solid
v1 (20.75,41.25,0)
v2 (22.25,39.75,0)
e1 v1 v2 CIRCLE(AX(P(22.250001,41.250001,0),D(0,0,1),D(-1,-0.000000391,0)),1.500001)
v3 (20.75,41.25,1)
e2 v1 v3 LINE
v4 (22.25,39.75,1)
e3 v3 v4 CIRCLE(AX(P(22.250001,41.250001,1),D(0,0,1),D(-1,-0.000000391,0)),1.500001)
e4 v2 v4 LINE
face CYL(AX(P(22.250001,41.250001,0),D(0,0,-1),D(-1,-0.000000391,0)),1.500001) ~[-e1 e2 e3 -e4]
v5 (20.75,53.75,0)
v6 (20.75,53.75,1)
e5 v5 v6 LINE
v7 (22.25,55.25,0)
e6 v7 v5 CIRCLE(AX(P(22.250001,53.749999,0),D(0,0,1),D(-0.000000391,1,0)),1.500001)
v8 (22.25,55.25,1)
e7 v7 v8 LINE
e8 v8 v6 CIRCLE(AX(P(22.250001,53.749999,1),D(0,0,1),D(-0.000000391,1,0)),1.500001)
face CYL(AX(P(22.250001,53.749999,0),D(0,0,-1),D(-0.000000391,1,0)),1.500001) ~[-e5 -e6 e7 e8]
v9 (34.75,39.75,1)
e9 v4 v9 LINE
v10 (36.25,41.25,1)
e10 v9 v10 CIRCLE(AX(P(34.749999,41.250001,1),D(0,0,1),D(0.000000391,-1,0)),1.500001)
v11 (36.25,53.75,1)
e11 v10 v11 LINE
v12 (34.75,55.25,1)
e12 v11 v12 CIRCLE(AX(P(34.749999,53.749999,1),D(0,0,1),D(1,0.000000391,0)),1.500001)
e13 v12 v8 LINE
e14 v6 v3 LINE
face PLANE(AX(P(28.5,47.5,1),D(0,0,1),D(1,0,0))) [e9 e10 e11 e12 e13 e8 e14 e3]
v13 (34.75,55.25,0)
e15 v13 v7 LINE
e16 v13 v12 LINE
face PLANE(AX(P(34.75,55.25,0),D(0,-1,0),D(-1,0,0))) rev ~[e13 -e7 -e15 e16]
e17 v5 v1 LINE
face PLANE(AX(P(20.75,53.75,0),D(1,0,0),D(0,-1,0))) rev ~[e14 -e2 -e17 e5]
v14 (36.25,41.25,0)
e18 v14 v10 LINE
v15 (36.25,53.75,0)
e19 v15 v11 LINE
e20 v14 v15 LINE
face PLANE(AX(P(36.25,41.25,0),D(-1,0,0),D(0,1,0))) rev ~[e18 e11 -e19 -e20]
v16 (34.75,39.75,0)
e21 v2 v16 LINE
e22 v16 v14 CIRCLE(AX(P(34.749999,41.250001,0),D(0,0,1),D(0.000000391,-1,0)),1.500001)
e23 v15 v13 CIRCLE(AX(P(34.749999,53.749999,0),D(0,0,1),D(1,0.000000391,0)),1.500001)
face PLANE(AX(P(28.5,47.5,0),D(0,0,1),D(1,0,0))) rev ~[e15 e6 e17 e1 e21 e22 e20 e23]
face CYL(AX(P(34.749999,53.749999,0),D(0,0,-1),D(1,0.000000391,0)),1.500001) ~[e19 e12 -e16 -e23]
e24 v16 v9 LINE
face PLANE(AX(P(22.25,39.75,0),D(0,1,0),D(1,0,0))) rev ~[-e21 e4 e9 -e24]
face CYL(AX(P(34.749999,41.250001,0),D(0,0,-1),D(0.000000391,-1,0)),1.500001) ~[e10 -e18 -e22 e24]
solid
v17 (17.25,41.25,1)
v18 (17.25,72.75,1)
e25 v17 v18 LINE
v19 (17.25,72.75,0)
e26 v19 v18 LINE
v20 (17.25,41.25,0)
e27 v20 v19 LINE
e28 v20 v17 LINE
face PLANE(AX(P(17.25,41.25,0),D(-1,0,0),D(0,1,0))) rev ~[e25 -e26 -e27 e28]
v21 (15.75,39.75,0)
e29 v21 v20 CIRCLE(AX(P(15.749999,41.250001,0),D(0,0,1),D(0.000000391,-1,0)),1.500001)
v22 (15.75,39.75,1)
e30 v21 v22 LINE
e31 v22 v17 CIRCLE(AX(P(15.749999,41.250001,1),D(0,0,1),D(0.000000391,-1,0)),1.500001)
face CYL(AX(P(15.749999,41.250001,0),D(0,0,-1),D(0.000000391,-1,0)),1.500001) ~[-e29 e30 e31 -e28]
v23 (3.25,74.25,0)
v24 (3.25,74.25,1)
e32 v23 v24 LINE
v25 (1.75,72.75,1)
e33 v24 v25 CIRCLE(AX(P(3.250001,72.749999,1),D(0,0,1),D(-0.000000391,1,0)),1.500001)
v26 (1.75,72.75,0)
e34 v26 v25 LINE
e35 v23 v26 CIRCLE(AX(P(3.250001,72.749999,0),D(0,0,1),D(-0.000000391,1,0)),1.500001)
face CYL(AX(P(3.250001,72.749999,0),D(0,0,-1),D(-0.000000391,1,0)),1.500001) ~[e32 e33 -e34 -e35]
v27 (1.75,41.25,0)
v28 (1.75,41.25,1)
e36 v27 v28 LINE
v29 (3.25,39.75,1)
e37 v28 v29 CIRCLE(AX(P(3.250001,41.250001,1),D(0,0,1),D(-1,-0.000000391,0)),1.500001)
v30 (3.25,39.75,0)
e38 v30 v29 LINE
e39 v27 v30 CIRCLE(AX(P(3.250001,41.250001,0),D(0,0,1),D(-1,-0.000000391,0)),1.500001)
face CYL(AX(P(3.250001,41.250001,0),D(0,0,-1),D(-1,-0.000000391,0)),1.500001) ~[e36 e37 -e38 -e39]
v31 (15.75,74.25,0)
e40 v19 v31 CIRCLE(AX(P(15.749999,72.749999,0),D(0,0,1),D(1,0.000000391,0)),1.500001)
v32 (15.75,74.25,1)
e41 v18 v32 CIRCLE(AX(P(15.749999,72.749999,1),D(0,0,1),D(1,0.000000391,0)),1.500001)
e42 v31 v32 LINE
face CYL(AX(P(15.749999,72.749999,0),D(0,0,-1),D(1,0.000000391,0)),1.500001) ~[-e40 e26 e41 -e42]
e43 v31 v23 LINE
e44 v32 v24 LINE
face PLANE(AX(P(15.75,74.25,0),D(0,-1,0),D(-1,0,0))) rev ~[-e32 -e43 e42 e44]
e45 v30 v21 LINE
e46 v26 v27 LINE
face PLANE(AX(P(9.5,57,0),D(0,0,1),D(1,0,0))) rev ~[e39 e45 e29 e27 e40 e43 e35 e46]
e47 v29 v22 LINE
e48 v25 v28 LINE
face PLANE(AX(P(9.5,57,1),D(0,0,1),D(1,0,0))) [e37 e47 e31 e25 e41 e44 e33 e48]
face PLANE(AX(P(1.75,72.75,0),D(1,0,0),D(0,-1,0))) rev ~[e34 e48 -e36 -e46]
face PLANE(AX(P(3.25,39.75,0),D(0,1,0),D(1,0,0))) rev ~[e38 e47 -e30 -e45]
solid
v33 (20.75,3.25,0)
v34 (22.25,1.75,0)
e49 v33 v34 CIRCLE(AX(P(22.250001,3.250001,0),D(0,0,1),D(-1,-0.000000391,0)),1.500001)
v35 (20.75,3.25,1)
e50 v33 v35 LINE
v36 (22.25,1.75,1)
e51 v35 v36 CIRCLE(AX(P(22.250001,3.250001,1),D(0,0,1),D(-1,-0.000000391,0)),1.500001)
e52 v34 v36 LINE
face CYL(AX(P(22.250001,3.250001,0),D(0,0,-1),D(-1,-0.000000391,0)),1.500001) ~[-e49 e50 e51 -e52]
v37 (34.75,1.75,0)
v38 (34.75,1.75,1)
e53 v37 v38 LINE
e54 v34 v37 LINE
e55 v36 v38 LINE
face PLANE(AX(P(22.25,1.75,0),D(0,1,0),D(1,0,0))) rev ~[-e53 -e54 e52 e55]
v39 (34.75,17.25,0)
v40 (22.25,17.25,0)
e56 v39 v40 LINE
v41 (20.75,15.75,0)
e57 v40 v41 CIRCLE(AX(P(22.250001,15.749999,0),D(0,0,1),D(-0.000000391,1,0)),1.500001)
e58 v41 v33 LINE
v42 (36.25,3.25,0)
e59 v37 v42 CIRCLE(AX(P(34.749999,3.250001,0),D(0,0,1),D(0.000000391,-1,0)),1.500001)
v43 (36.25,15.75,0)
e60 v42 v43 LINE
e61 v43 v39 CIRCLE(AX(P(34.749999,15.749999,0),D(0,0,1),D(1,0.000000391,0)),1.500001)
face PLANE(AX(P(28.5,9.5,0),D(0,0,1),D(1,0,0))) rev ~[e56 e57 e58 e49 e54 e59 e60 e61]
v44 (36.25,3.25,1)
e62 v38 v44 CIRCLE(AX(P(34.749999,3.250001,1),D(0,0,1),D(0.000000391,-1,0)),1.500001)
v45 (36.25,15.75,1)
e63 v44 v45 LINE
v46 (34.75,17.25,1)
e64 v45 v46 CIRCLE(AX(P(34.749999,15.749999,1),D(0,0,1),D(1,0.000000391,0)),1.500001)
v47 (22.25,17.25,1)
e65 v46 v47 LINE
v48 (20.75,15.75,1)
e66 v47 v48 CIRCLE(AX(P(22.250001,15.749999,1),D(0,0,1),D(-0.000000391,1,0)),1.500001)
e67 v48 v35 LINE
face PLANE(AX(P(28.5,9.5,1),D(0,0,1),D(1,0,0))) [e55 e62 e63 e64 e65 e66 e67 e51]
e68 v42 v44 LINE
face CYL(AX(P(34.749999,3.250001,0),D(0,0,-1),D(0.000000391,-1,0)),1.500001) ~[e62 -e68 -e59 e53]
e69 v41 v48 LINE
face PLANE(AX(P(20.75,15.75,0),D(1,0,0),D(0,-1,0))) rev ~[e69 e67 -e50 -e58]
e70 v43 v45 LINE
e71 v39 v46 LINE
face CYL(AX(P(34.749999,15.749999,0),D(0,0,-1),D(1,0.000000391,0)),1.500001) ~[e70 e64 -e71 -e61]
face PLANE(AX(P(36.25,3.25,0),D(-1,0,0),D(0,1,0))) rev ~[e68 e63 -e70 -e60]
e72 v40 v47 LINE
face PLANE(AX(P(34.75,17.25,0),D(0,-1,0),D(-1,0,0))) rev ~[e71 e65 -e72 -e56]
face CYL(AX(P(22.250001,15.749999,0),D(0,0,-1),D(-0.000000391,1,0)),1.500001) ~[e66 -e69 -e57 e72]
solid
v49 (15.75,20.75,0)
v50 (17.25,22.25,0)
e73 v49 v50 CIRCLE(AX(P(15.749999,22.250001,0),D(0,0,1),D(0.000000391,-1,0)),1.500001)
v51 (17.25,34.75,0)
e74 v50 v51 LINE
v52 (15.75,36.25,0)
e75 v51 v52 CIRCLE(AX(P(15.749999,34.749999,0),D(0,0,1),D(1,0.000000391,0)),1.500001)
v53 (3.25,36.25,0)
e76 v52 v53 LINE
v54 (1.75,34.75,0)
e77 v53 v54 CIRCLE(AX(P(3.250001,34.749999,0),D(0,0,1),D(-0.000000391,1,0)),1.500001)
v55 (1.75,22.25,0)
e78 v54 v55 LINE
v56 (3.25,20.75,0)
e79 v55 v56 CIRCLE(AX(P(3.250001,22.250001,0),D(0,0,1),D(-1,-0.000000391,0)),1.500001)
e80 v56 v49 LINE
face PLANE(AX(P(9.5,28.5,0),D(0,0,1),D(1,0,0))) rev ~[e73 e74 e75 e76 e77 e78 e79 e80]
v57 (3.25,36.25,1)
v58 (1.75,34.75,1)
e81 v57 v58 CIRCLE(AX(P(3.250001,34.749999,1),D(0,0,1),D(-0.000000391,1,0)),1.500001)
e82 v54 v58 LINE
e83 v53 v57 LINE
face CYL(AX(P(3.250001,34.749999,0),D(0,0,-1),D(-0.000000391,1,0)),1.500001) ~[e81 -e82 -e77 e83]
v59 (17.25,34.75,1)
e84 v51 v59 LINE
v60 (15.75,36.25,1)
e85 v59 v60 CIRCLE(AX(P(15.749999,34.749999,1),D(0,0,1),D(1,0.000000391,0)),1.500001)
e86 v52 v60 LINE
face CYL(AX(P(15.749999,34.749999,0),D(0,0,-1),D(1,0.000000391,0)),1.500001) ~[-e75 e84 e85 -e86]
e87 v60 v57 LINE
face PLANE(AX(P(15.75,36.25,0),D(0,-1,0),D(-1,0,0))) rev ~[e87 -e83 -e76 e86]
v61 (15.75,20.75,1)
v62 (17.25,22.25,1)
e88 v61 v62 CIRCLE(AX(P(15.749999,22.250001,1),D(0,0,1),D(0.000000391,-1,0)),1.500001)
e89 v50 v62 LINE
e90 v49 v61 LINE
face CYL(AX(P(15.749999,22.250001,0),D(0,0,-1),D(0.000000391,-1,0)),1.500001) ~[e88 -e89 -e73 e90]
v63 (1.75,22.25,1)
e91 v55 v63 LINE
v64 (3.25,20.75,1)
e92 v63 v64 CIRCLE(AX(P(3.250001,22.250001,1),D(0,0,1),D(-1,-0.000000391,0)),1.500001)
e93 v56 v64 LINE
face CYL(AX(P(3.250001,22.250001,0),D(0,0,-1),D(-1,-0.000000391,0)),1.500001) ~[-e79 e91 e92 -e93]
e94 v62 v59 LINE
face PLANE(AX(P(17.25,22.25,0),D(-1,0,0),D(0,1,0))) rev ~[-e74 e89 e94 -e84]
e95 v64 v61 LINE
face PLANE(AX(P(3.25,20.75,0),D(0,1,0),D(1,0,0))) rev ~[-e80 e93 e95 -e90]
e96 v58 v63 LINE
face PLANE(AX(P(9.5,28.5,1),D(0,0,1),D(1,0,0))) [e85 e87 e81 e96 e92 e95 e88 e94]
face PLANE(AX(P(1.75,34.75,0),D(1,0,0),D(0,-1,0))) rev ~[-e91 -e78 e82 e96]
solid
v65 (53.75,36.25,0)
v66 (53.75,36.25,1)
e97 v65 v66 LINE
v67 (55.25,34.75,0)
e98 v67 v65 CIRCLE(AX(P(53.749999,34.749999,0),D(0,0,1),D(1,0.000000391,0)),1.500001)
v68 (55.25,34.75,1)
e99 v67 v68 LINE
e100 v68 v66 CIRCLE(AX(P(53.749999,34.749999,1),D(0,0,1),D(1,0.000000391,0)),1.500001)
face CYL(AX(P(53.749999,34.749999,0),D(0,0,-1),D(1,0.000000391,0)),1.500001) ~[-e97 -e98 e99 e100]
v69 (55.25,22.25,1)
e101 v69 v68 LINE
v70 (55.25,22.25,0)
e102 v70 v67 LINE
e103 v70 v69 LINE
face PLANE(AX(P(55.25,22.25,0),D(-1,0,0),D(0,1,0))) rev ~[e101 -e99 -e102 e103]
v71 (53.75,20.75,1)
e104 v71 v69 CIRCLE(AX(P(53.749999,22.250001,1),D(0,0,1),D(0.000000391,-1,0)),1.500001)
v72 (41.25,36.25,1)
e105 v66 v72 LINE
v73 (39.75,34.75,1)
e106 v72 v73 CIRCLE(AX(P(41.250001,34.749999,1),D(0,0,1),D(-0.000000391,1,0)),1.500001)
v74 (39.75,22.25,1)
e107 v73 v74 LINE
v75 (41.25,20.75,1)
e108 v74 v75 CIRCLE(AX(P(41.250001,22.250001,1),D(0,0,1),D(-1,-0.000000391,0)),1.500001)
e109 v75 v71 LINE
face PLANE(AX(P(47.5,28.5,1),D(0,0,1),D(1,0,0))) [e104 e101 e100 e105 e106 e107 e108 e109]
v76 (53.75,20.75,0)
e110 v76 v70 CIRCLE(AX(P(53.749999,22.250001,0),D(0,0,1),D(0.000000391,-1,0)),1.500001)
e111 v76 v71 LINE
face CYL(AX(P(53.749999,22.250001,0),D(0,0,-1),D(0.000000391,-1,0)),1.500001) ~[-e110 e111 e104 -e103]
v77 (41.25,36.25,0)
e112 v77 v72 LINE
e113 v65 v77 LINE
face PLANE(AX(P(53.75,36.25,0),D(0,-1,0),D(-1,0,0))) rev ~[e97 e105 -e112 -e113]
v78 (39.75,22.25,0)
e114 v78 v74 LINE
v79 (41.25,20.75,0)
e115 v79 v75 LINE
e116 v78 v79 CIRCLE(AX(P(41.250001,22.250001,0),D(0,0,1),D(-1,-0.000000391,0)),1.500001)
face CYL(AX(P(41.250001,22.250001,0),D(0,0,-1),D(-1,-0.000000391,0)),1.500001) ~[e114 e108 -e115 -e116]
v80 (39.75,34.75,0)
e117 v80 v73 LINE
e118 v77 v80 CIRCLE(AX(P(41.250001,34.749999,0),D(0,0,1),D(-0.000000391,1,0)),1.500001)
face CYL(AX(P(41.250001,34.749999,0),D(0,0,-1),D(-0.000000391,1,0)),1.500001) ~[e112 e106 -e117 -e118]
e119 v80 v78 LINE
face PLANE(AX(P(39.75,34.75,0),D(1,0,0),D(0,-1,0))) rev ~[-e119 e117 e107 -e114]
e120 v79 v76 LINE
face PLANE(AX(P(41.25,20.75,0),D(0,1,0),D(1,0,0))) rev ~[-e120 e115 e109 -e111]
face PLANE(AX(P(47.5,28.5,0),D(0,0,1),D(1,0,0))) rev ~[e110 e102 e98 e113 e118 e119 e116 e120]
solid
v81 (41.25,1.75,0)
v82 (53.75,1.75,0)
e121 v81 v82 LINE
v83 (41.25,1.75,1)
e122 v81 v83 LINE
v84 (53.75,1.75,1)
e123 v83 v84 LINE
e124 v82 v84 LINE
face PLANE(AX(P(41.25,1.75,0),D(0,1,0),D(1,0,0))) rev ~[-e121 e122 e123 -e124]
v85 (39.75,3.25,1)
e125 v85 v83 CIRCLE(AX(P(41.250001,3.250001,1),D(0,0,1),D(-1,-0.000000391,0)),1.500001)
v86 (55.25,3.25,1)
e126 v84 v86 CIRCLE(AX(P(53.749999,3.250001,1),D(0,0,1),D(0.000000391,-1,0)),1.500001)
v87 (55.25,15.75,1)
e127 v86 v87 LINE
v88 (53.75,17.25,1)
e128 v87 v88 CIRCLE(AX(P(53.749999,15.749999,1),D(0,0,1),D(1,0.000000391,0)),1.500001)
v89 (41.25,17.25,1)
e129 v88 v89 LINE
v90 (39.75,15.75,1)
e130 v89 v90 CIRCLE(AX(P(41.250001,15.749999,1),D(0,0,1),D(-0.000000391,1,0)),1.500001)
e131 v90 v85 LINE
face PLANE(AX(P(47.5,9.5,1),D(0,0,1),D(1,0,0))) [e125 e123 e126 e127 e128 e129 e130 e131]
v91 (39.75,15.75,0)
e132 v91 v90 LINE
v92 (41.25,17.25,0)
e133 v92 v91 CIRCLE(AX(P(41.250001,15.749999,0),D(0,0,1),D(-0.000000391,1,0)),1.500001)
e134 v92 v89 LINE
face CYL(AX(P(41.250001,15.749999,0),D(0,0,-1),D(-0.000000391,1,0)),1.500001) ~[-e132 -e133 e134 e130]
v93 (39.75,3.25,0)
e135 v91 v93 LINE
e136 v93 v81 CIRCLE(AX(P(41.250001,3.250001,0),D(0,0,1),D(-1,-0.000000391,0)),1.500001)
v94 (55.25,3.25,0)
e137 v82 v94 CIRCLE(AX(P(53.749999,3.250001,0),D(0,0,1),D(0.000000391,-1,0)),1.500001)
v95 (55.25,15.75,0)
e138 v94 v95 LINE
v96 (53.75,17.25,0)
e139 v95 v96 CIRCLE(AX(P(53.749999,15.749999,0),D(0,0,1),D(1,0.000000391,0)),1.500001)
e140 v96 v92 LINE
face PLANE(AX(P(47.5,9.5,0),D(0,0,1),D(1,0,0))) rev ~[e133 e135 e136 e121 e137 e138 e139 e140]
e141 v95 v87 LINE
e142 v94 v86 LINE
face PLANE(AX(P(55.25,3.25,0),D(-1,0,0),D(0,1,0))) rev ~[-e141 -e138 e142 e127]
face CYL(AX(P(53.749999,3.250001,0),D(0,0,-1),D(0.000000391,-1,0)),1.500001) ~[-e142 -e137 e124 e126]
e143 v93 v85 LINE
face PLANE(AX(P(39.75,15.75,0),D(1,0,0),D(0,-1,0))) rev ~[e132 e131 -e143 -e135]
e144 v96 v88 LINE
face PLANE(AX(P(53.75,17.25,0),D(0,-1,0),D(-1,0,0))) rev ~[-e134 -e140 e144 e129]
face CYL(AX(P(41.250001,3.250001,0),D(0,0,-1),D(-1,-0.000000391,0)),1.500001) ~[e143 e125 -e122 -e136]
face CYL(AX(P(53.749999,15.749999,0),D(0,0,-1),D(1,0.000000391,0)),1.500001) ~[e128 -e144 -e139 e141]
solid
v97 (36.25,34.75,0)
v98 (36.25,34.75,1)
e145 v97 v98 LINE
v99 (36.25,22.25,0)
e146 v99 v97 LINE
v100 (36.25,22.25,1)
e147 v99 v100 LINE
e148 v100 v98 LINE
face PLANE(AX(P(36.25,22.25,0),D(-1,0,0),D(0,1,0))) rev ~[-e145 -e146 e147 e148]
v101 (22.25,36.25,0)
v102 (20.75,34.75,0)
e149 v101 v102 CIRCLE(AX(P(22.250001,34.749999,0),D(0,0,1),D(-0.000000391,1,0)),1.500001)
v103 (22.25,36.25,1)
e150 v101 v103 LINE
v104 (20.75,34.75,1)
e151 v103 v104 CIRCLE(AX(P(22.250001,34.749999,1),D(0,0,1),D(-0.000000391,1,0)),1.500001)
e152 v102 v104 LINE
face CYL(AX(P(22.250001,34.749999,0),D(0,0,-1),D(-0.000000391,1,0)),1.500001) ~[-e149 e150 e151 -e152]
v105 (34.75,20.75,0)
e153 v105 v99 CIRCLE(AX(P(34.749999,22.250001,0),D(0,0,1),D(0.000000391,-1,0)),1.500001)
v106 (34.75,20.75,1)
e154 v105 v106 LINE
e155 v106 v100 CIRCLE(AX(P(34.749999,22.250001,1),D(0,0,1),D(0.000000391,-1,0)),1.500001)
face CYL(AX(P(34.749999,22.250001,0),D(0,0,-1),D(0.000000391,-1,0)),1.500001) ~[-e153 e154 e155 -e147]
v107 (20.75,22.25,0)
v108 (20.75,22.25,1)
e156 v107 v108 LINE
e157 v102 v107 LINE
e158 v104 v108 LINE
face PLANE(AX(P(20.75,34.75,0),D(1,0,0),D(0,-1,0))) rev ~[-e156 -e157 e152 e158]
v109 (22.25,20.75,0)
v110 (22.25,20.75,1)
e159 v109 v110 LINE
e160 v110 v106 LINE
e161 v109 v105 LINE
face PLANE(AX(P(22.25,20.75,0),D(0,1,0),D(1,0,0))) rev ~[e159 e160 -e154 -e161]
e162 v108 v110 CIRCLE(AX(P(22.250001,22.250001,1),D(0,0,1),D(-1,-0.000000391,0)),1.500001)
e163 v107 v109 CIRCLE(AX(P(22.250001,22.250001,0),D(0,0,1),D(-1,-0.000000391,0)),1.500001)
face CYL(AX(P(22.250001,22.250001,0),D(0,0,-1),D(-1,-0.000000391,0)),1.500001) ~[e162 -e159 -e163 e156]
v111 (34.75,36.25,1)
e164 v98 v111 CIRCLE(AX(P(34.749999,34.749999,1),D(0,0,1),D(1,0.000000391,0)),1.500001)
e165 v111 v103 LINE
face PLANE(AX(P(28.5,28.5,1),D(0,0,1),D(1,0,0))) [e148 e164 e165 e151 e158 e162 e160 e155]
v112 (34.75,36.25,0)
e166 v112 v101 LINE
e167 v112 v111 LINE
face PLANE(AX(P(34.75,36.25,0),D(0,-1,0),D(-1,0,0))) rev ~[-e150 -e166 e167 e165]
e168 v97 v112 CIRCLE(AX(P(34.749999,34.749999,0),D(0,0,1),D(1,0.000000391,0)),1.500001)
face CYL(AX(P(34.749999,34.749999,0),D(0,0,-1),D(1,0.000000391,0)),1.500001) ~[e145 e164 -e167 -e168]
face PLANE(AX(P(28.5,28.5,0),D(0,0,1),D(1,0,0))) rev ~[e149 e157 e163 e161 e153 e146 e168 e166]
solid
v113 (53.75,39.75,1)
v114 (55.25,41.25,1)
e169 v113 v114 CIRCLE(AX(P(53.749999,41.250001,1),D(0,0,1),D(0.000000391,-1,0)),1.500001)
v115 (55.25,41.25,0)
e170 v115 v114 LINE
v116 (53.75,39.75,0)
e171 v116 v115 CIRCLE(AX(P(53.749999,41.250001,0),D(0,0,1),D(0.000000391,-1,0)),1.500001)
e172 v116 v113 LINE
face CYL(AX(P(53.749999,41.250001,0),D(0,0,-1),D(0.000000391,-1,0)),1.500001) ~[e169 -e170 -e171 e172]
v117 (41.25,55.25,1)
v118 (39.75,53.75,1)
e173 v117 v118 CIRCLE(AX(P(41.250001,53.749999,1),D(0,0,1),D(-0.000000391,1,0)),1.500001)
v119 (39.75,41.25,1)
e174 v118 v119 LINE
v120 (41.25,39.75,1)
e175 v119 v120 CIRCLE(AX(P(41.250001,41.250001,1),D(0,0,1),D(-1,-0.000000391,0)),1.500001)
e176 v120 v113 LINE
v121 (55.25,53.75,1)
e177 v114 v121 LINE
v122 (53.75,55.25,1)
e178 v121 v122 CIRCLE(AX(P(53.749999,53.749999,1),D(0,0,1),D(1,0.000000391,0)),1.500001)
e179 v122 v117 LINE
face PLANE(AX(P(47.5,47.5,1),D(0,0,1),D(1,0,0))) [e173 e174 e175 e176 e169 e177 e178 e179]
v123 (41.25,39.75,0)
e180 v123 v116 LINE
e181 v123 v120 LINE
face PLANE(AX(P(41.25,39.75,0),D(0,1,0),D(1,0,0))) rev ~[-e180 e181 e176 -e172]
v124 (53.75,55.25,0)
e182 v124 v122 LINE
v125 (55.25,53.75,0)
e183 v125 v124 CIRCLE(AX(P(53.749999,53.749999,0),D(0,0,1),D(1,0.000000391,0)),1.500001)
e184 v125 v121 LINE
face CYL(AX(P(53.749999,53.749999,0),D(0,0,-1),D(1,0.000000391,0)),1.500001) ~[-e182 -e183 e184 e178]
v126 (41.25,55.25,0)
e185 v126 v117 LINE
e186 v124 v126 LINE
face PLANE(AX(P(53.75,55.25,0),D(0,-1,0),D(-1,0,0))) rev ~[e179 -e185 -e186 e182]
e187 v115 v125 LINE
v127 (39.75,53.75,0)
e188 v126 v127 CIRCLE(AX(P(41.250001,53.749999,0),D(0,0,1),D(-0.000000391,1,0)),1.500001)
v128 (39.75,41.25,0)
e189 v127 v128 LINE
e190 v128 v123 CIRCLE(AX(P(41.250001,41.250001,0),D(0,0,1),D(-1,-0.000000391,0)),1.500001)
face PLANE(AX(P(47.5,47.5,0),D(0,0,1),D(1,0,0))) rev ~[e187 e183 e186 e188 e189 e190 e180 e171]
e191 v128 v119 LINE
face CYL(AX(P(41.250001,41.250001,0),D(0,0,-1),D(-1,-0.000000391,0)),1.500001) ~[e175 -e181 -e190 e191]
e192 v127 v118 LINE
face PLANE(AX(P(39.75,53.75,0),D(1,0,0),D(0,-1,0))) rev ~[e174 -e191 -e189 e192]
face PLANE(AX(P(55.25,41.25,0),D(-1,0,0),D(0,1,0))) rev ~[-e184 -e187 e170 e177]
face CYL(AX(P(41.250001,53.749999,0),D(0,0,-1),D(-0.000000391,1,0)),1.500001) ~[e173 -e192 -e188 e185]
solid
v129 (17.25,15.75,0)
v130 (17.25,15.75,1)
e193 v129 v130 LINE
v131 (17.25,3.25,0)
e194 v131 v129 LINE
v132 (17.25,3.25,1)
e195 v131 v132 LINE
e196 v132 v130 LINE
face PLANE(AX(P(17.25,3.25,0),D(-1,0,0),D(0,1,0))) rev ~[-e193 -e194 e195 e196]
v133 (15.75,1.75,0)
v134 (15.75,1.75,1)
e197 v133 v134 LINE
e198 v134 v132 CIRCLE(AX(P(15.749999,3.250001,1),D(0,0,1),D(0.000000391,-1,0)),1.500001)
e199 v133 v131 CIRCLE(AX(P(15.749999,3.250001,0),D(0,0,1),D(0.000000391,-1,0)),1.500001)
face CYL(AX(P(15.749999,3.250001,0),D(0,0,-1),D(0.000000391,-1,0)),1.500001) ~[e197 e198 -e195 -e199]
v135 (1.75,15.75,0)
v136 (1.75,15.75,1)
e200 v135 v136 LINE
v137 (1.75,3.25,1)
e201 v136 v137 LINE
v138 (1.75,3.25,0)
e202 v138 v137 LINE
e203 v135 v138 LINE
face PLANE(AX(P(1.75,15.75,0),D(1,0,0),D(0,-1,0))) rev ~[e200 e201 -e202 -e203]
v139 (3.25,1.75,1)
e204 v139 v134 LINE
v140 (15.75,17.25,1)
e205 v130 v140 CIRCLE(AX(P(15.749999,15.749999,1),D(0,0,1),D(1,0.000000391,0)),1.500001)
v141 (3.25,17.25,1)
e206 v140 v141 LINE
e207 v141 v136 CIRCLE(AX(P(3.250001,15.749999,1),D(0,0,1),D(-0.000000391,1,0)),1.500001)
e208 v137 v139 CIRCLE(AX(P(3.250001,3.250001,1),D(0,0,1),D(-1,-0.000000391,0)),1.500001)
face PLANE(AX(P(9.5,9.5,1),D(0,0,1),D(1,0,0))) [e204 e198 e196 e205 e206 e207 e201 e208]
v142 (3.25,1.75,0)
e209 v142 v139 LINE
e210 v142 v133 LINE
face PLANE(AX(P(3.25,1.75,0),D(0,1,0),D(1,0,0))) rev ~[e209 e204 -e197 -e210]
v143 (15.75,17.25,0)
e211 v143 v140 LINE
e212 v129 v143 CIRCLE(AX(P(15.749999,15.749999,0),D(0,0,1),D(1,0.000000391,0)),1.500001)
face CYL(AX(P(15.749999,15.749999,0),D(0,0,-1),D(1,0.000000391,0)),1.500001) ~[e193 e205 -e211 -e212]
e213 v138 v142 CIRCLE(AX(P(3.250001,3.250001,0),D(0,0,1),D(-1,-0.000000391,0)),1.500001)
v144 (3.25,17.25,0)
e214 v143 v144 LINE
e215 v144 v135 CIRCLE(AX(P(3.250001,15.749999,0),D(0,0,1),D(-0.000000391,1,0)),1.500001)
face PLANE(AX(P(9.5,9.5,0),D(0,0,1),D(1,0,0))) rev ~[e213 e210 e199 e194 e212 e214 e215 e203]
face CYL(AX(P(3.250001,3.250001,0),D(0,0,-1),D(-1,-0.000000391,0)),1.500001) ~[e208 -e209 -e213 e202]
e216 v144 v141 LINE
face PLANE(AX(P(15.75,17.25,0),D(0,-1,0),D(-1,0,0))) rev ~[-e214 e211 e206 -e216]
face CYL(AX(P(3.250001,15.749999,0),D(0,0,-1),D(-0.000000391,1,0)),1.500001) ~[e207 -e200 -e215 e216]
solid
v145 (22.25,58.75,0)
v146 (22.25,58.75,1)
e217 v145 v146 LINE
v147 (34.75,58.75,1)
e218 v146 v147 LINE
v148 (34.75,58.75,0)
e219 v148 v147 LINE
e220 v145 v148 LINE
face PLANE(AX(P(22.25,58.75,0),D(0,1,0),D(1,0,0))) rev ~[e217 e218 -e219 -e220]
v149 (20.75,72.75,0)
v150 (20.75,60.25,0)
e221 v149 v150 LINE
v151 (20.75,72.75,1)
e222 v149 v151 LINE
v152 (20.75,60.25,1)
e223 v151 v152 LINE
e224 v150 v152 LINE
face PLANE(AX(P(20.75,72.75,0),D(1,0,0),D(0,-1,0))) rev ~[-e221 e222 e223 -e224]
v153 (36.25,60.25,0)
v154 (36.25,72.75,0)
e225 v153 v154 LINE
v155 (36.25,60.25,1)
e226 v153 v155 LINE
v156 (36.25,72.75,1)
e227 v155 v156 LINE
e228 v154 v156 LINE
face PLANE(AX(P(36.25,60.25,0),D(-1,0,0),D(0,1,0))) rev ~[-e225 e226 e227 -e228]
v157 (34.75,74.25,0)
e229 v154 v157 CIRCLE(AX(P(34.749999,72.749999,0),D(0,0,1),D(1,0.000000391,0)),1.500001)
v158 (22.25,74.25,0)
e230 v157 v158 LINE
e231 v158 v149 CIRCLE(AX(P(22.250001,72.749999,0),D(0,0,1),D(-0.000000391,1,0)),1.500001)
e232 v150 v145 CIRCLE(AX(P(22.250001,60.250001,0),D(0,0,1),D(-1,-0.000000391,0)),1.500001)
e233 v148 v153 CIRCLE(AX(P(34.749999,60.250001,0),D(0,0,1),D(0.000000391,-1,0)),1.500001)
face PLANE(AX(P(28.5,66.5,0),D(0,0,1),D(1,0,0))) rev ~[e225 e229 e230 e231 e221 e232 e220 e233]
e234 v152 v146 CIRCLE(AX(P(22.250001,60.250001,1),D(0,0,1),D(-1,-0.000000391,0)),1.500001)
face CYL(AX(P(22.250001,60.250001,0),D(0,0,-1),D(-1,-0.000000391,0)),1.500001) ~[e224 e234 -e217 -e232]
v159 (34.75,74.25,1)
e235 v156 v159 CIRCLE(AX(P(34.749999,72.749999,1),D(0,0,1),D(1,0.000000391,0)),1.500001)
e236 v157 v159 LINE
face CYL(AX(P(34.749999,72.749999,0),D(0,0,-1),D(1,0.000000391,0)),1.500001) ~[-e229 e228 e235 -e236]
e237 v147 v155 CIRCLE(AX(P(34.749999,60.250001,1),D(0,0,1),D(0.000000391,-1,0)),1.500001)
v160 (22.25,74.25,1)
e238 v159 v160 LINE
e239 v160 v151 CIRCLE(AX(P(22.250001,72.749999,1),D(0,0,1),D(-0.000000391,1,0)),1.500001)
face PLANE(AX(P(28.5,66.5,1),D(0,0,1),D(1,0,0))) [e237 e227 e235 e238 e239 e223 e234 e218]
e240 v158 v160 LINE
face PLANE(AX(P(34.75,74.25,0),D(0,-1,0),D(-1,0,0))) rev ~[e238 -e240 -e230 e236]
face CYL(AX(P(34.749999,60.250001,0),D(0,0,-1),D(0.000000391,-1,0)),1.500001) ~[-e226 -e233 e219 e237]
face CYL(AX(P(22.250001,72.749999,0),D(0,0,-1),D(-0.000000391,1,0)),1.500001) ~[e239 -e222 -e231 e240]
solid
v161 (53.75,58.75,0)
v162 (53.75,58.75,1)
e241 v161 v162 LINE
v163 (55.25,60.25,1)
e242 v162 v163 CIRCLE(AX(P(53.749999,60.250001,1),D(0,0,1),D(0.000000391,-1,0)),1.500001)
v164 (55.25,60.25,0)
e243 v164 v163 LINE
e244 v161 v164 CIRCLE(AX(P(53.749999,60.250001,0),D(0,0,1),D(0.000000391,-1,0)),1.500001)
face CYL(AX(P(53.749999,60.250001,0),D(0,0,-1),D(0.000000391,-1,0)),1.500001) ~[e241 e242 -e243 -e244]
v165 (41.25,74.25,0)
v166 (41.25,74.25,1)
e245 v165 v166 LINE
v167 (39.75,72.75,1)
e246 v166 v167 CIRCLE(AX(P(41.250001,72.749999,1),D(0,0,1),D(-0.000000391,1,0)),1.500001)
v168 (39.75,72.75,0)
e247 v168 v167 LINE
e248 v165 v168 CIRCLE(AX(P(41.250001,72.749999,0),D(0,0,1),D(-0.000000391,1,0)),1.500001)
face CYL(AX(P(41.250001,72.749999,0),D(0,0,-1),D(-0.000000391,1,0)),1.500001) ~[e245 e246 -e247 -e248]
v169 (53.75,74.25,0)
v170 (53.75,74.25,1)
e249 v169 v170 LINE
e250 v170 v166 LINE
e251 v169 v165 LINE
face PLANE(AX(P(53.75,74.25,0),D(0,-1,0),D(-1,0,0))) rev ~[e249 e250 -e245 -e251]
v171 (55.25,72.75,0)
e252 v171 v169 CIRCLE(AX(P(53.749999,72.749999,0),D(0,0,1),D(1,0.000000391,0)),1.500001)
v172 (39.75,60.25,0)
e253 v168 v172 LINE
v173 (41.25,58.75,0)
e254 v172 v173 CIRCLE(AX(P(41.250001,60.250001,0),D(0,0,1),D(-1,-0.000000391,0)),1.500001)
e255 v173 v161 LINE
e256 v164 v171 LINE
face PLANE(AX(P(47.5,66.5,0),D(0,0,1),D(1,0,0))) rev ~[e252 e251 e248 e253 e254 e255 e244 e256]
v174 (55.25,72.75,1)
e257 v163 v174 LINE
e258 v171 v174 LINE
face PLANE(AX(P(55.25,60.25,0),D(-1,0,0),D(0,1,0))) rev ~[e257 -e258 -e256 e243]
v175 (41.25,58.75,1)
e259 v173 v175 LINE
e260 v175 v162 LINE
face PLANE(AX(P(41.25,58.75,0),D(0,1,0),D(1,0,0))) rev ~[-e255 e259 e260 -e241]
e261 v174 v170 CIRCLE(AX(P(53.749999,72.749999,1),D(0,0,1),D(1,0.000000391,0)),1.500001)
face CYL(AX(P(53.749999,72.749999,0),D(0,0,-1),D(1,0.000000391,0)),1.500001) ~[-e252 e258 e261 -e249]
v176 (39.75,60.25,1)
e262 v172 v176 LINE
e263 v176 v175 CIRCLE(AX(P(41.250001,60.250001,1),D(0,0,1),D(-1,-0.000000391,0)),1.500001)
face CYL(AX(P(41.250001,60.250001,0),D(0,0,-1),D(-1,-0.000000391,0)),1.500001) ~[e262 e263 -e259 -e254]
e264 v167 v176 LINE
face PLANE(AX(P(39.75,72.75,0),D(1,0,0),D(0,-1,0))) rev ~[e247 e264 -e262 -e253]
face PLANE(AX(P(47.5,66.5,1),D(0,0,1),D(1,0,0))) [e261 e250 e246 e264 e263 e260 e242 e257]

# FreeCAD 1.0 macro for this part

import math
import FreeCAD as App
import Part
import Sketcher

V = App.Vector
Q = App.Units.Quantity

doc = App.newDocument("Part")
body = doc.addObject("PartDesign::Body", "Body")
body.AllowCompound = True

# Sketch on XY plane
sketch1 = body.newObject("Sketcher::SketchObject", "Sketch")
sketch1.AttachmentSupport = (doc.getObject("XY_Plane"), [""])
sketch1.MapMode = "FlatFace"
sketch1.addGeometry(Part.LineSegment(V(15.75, 17.25, 0), V(3.25, 17.25, 0)), False)
sketch1.addGeometry(Part.ArcOfCircle(Part.Circle(V(3.250001, 15.749999, 0), V(0, 0, 1), 1.500001), math.radians(90.000022), math.radians(179.999978)), False)
sketch1.addGeometry(Part.LineSegment(V(1.75, 15.75, 0), V(1.75, 3.25, 0)), False)
sketch1.addGeometry(Part.ArcOfCircle(Part.Circle(V(3.250001, 3.250001, 0), V(0, 0, 1), 1.500001), math.radians(-179.999978), math.radians(-90.000022)), False)
sketch1.addGeometry(Part.LineSegment(V(3.25, 1.75, 0), V(15.75, 1.75, 0)), False)
sketch1.addGeometry(Part.ArcOfCircle(Part.Circle(V(15.749999, 3.250001, 0), V(0, 0, 1), 1.500001), math.radians(-89.999978), math.radians(-0.000022)), False)
sketch1.addGeometry(Part.LineSegment(V(17.25, 3.25, 0), V(17.25, 15.75, 0)), False)
sketch1.addGeometry(Part.ArcOfCircle(Part.Circle(V(15.749999, 15.749999, 0), V(0, 0, 1), 1.500001), math.radians(0.000022), math.radians(89.999978)), False)
sketch1.addGeometry(Part.LineSegment(V(17.25, 22.25, 0), V(17.25, 34.75, 0)), False)
sketch1.addGeometry(Part.ArcOfCircle(Part.Circle(V(15.749999, 34.749999, 0), V(0, 0, 1), 1.500001), math.radians(0.000022), math.radians(89.999978)), False)
sketch1.addGeometry(Part.LineSegment(V(15.75, 36.25, 0), V(3.25, 36.25, 0)), False)
sketch1.addGeometry(Part.ArcOfCircle(Part.Circle(V(3.250001, 34.749999, 0), V(0, 0, 1), 1.500001), math.radians(90.000022), math.radians(179.999978)), False)
sketch1.addGeometry(Part.LineSegment(V(1.75, 34.75, 0), V(1.75, 22.25, 0)), False)
sketch1.addGeometry(Part.ArcOfCircle(Part.Circle(V(3.250001, 22.250001, 0), V(0, 0, 1), 1.500001), math.radians(-179.999978), math.radians(-90.000022)), False)
sketch1.addGeometry(Part.LineSegment(V(3.25, 20.75, 0), V(15.75, 20.75, 0)), False)
sketch1.addGeometry(Part.ArcOfCircle(Part.Circle(V(15.749999, 22.250001, 0), V(0, 0, 1), 1.500001), math.radians(-89.999978), math.radians(-0.000022)), False)
sketch1.addGeometry(Part.LineSegment(V(3.25, 39.75, 0), V(15.75, 39.75, 0)), False)
sketch1.addGeometry(Part.ArcOfCircle(Part.Circle(V(15.749999, 41.250001, 0), V(0, 0, 1), 1.500001), math.radians(-89.999978), math.radians(-0.000022)), False)
sketch1.addGeometry(Part.LineSegment(V(17.25, 41.25, 0), V(17.25, 72.75, 0)), False)
sketch1.addGeometry(Part.ArcOfCircle(Part.Circle(V(15.749999, 72.749999, 0), V(0, 0, 1), 1.500001), math.radians(0.000022), math.radians(89.999978)), False)
sketch1.addGeometry(Part.LineSegment(V(15.75, 74.25, 0), V(3.25, 74.25, 0)), False)
sketch1.addGeometry(Part.ArcOfCircle(Part.Circle(V(3.250001, 72.749999, 0), V(0, 0, 1), 1.500001), math.radians(90.000022), math.radians(179.999978)), False)
sketch1.addGeometry(Part.LineSegment(V(1.75, 72.75, 0), V(1.75, 41.25, 0)), False)
sketch1.addGeometry(Part.ArcOfCircle(Part.Circle(V(3.250001, 41.250001, 0), V(0, 0, 1), 1.500001), math.radians(-179.999978), math.radians(-90.000022)), False)
sketch1.addGeometry(Part.LineSegment(V(36.25, 3.25, 0), V(36.25, 15.75, 0)), False)
sketch1.addGeometry(Part.ArcOfCircle(Part.Circle(V(34.749999, 15.749999, 0), V(0, 0, 1), 1.500001), math.radians(0.000022), math.radians(89.999978)), False)
sketch1.addGeometry(Part.LineSegment(V(34.75, 17.25, 0), V(22.25, 17.25, 0)), False)
sketch1.addGeometry(Part.ArcOfCircle(Part.Circle(V(22.250001, 15.749999, 0), V(0, 0, 1), 1.500001), math.radians(90.000022), math.radians(179.999978)), False)
sketch1.addGeometry(Part.LineSegment(V(20.75, 15.75, 0), V(20.75, 3.25, 0)), False)
sketch1.addGeometry(Part.ArcOfCircle(Part.Circle(V(22.250001, 3.250001, 0), V(0, 0, 1), 1.500001), math.radians(-179.999978), math.radians(-90.000022)), False)
sketch1.addGeometry(Part.LineSegment(V(22.25, 1.75, 0), V(34.75, 1.75, 0)), False)
sketch1.addGeometry(Part.ArcOfCircle(Part.Circle(V(34.749999, 3.250001, 0), V(0, 0, 1), 1.500001), math.radians(-89.999978), math.radians(-0.000022)), False)
sketch1.addGeometry(Part.LineSegment(V(36.25, 22.25, 0), V(36.25, 34.75, 0)), False)
sketch1.addGeometry(Part.ArcOfCircle(Part.Circle(V(34.749999, 34.749999, 0), V(0, 0, 1), 1.500001), math.radians(0.000022), math.radians(89.999978)), False)
sketch1.addGeometry(Part.LineSegment(V(34.75, 36.25, 0), V(22.25, 36.25, 0)), False)
sketch1.addGeometry(Part.ArcOfCircle(Part.Circle(V(22.250001, 34.749999, 0), V(0, 0, 1), 1.500001), math.radians(90.000022), math.radians(179.999978)), False)
sketch1.addGeometry(Part.LineSegment(V(20.75, 34.75, 0), V(20.75, 22.25, 0)), False)
sketch1.addGeometry(Part.ArcOfCircle(Part.Circle(V(22.250001, 22.250001, 0), V(0, 0, 1), 1.500001), math.radians(-179.999978), math.radians(-90.000022)), False)
sketch1.addGeometry(Part.LineSegment(V(22.25, 20.75, 0), V(34.75, 20.75, 0)), False)
sketch1.addGeometry(Part.ArcOfCircle(Part.Circle(V(34.749999, 22.250001, 0), V(0, 0, 1), 1.500001), math.radians(-89.999978), math.radians(-0.000022)), False)
sketch1.addGeometry(Part.LineSegment(V(36.25, 41.25, 0), V(36.25, 53.75, 0)), False)
sketch1.addGeometry(Part.ArcOfCircle(Part.Circle(V(34.749999, 53.749999, 0), V(0, 0, 1), 1.500001), math.radians(0.000022), math.radians(89.999978)), False)
sketch1.addGeometry(Part.LineSegment(V(34.75, 55.25, 0), V(22.25, 55.25, 0)), False)
sketch1.addGeometry(Part.ArcOfCircle(Part.Circle(V(22.250001, 53.749999, 0), V(0, 0, 1), 1.500001), math.radians(90.000022), math.radians(179.999978)), False)
sketch1.addGeometry(Part.LineSegment(V(20.75, 53.75, 0), V(20.75, 41.25, 0)), False)
sketch1.addGeometry(Part.ArcOfCircle(Part.Circle(V(22.250001, 41.250001, 0), V(0, 0, 1), 1.500001), math.radians(-179.999978), math.radians(-90.000022)), False)
sketch1.addGeometry(Part.LineSegment(V(22.25, 39.75, 0), V(34.75, 39.75, 0)), False)
sketch1.addGeometry(Part.ArcOfCircle(Part.Circle(V(34.749999, 41.250001, 0), V(0, 0, 1), 1.500001), math.radians(-89.999978), math.radians(-0.000022)), False)
sketch1.addGeometry(Part.LineSegment(V(36.25, 60.25, 0), V(36.25, 72.75, 0)), False)
sketch1.addGeometry(Part.ArcOfCircle(Part.Circle(V(34.749999, 72.749999, 0), V(0, 0, 1), 1.500001), math.radians(0.000022), math.radians(89.999978)), False)
sketch1.addGeometry(Part.LineSegment(V(34.75, 74.25, 0), V(22.25, 74.25, 0)), False)
sketch1.addGeometry(Part.ArcOfCircle(Part.Circle(V(22.250001, 72.749999, 0), V(0, 0, 1), 1.500001), math.radians(90.000022), math.radians(179.999978)), False)
sketch1.addGeometry(Part.LineSegment(V(20.75, 72.75, 0), V(20.75, 60.25, 0)), False)
sketch1.addGeometry(Part.ArcOfCircle(Part.Circle(V(22.250001, 60.250001, 0), V(0, 0, 1), 1.500001), math.radians(-179.999978), math.radians(-90.000022)), False)
sketch1.addGeometry(Part.LineSegment(V(22.25, 58.75, 0), V(34.75, 58.75, 0)), False)
sketch1.addGeometry(Part.ArcOfCircle(Part.Circle(V(34.749999, 60.250001, 0), V(0, 0, 1), 1.500001), math.radians(-89.999978), math.radians(-0.000022)), False)
sketch1.addGeometry(Part.LineSegment(V(55.25, 3.25, 0), V(55.25, 15.75, 0)), False)
sketch1.addGeometry(Part.ArcOfCircle(Part.Circle(V(53.749999, 15.749999, 0), V(0, 0, 1), 1.500001), math.radians(0.000022), math.radians(89.999978)), False)
sketch1.addGeometry(Part.LineSegment(V(53.75, 17.25, 0), V(41.25, 17.25, 0)), False)
sketch1.addGeometry(Part.ArcOfCircle(Part.Circle(V(41.250001, 15.749999, 0), V(0, 0, 1), 1.500001), math.radians(90.000022), math.radians(179.999978)), False)
sketch1.addGeometry(Part.LineSegment(V(39.75, 15.75, 0), V(39.75, 3.25, 0)), False)
sketch1.addGeometry(Part.ArcOfCircle(Part.Circle(V(41.250001, 3.250001, 0), V(0, 0, 1), 1.500001), math.radians(-179.999978), math.radians(-90.000022)), False)
sketch1.addGeometry(Part.LineSegment(V(41.25, 1.75, 0), V(53.75, 1.75, 0)), False)
sketch1.addGeometry(Part.ArcOfCircle(Part.Circle(V(53.749999, 3.250001, 0), V(0, 0, 1), 1.500001), math.radians(-89.999978), math.radians(-0.000022)), False)
sketch1.addGeometry(Part.LineSegment(V(55.25, 22.25, 0), V(55.25, 34.75, 0)), False)
sketch1.addGeometry(Part.ArcOfCircle(Part.Circle(V(53.749999, 34.749999, 0), V(0, 0, 1), 1.500001), math.radians(0.000022), math.radians(89.999978)), False)
sketch1.addGeometry(Part.LineSegment(V(53.75, 36.25, 0), V(41.25, 36.25, 0)), False)
sketch1.addGeometry(Part.ArcOfCircle(Part.Circle(V(41.250001, 34.749999, 0), V(0, 0, 1), 1.500001), math.radians(90.000022), math.radians(179.999978)), False)
sketch1.addGeometry(Part.LineSegment(V(39.75, 34.75, 0), V(39.75, 22.25, 0)), False)
sketch1.addGeometry(Part.ArcOfCircle(Part.Circle(V(41.250001, 22.250001, 0), V(0, 0, 1), 1.500001), math.radians(-179.999978), math.radians(-90.000022)), False)
sketch1.addGeometry(Part.LineSegment(V(41.25, 20.75, 0), V(53.75, 20.75, 0)), False)
sketch1.addGeometry(Part.ArcOfCircle(Part.Circle(V(53.749999, 22.250001, 0), V(0, 0, 1), 1.500001), math.radians(-89.999978), math.radians(-0.000022)), False)
sketch1.addGeometry(Part.LineSegment(V(55.25, 41.25, 0), V(55.25, 53.75, 0)), False)
sketch1.addGeometry(Part.ArcOfCircle(Part.Circle(V(53.749999, 53.749999, 0), V(0, 0, 1), 1.500001), math.radians(0.000022), math.radians(89.999978)), False)
sketch1.addGeometry(Part.LineSegment(V(53.75, 55.25, 0), V(41.25, 55.25, 0)), False)
sketch1.addGeometry(Part.ArcOfCircle(Part.Circle(V(41.250001, 53.749999, 0), V(0, 0, 1), 1.500001), math.radians(90.000022), math.radians(179.999978)), False)
sketch1.addGeometry(Part.LineSegment(V(39.75, 53.75, 0), V(39.75, 41.25, 0)), False)
sketch1.addGeometry(Part.ArcOfCircle(Part.Circle(V(41.250001, 41.250001, 0), V(0, 0, 1), 1.500001), math.radians(-179.999978), math.radians(-90.000022)), False)
sketch1.addGeometry(Part.LineSegment(V(41.25, 39.75, 0), V(53.75, 39.75, 0)), False)
sketch1.addGeometry(Part.ArcOfCircle(Part.Circle(V(53.749999, 41.250001, 0), V(0, 0, 1), 1.500001), math.radians(-89.999978), math.radians(-0.000022)), False)
sketch1.addGeometry(Part.LineSegment(V(55.25, 60.25, 0), V(55.25, 72.75, 0)), False)
sketch1.addGeometry(Part.ArcOfCircle(Part.Circle(V(53.749999, 72.749999, 0), V(0, 0, 1), 1.500001), math.radians(0.000022), math.radians(89.999978)), False)
sketch1.addGeometry(Part.LineSegment(V(53.75, 74.25, 0), V(41.25, 74.25, 0)), False)
sketch1.addGeometry(Part.ArcOfCircle(Part.Circle(V(41.250001, 72.749999, 0), V(0, 0, 1), 1.500001), math.radians(90.000022), math.radians(179.999978)), False)
sketch1.addGeometry(Part.LineSegment(V(39.75, 72.75, 0), V(39.75, 60.25, 0)), False)
sketch1.addGeometry(Part.ArcOfCircle(Part.Circle(V(41.250001, 60.250001, 0), V(0, 0, 1), 1.500001), math.radians(-179.999978), math.radians(-90.000022)), False)
sketch1.addGeometry(Part.LineSegment(V(41.25, 58.75, 0), V(53.75, 58.75, 0)), False)
sketch1.addGeometry(Part.ArcOfCircle(Part.Circle(V(53.749999, 60.250001, 0), V(0, 0, 1), 1.500001), math.radians(-89.999978), math.radians(-0.000022)), False)
sketch1.addConstraint(Sketcher.Constraint("Tangent", 0, 2, 1, 1))
sketch1.addConstraint(Sketcher.Constraint("Tangent", 1, 2, 2, 1))
sketch1.addConstraint(Sketcher.Constraint("Tangent", 2, 2, 3, 1))
sketch1.addConstraint(Sketcher.Constraint("Tangent", 3, 2, 4, 1))
sketch1.addConstraint(Sketcher.Constraint("Tangent", 4, 2, 5, 1))
sketch1.addConstraint(Sketcher.Constraint("Tangent", 5, 2, 6, 1))
sketch1.addConstraint(Sketcher.Constraint("Tangent", 6, 2, 7, 1))
sketch1.addConstraint(Sketcher.Constraint("Tangent", 7, 2, 0, 1))
sketch1.addConstraint(Sketcher.Constraint("Tangent", 8, 2, 9, 1))
sketch1.addConstraint(Sketcher.Constraint("Tangent", 9, 2, 10, 1))
sketch1.addConstraint(Sketcher.Constraint("Tangent", 10, 2, 11, 1))
sketch1.addConstraint(Sketcher.Constraint("Tangent", 11, 2, 12, 1))
sketch1.addConstraint(Sketcher.Constraint("Tangent", 12, 2, 13, 1))
sketch1.addConstraint(Sketcher.Constraint("Tangent", 13, 2, 14, 1))
sketch1.addConstraint(Sketcher.Constraint("Tangent", 14, 2, 15, 1))
sketch1.addConstraint(Sketcher.Constraint("Tangent", 15, 2, 8, 1))
sketch1.addConstraint(Sketcher.Constraint("Tangent", 16, 2, 17, 1))
sketch1.addConstraint(Sketcher.Constraint("Tangent", 17, 2, 18, 1))
sketch1.addConstraint(Sketcher.Constraint("Tangent", 18, 2, 19, 1))
sketch1.addConstraint(Sketcher.Constraint("Tangent", 19, 2, 20, 1))
sketch1.addConstraint(Sketcher.Constraint("Tangent", 20, 2, 21, 1))
sketch1.addConstraint(Sketcher.Constraint("Tangent", 21, 2, 22, 1))
sketch1.addConstraint(Sketcher.Constraint("Tangent", 22, 2, 23, 1))
sketch1.addConstraint(Sketcher.Constraint("Tangent", 23, 2, 16, 1))
sketch1.addConstraint(Sketcher.Constraint("Tangent", 24, 2, 25, 1))
sketch1.addConstraint(Sketcher.Constraint("Tangent", 25, 2, 26, 1))
sketch1.addConstraint(Sketcher.Constraint("Tangent", 26, 2, 27, 1))
sketch1.addConstraint(Sketcher.Constraint("Tangent", 27, 2, 28, 1))
sketch1.addConstraint(Sketcher.Constraint("Tangent", 28, 2, 29, 1))
sketch1.addConstraint(Sketcher.Constraint("Tangent", 29, 2, 30, 1))
sketch1.addConstraint(Sketcher.Constraint("Tangent", 30, 2, 31, 1))
sketch1.addConstraint(Sketcher.Constraint("Tangent", 31, 2, 24, 1))
sketch1.addConstraint(Sketcher.Constraint("Tangent", 32, 2, 33, 1))
sketch1.addConstraint(Sketcher.Constraint("Tangent", 33, 2, 34, 1))
sketch1.addConstraint(Sketcher.Constraint("Tangent", 34, 2, 35, 1))
sketch1.addConstraint(Sketcher.Constraint("Tangent", 35, 2, 36, 1))
sketch1.addConstraint(Sketcher.Constraint("Tangent", 36, 2, 37, 1))
sketch1.addConstraint(Sketcher.Constraint("Tangent", 37, 2, 38, 1))
sketch1.addConstraint(Sketcher.Constraint("Tangent", 38, 2, 39, 1))
sketch1.addConstraint(Sketcher.Constraint("Tangent", 39, 2, 32, 1))
sketch1.addConstraint(Sketcher.Constraint("Tangent", 40, 2, 41, 1))
sketch1.addConstraint(Sketcher.Constraint("Tangent", 41, 2, 42, 1))
sketch1.addConstraint(Sketcher.Constraint("Tangent", 42, 2, 43, 1))
sketch1.addConstraint(Sketcher.Constraint("Tangent", 43, 2, 44, 1))
sketch1.addConstraint(Sketcher.Constraint("Tangent", 44, 2, 45, 1))
sketch1.addConstraint(Sketcher.Constraint("Tangent", 45, 2, 46, 1))
sketch1.addConstraint(Sketcher.Constraint("Tangent", 46, 2, 47, 1))
sketch1.addConstraint(Sketcher.Constraint("Tangent", 47, 2, 40, 1))
sketch1.addConstraint(Sketcher.Constraint("Tangent", 48, 2, 49, 1))
sketch1.addConstraint(Sketcher.Constraint("Tangent", 49, 2, 50, 1))
sketch1.addConstraint(Sketcher.Constraint("Tangent", 50, 2, 51, 1))
sketch1.addConstraint(Sketcher.Constraint("Tangent", 51, 2, 52, 1))
sketch1.addConstraint(Sketcher.Constraint("Tangent", 52, 2, 53, 1))
sketch1.addConstraint(Sketcher.Constraint("Tangent", 53, 2, 54, 1))
sketch1.addConstraint(Sketcher.Constraint("Tangent", 54, 2, 55, 1))
sketch1.addConstraint(Sketcher.Constraint("Tangent", 55, 2, 48, 1))
sketch1.addConstraint(Sketcher.Constraint("Tangent", 56, 2, 57, 1))
sketch1.addConstraint(Sketcher.Constraint("Tangent", 57, 2, 58, 1))
sketch1.addConstraint(Sketcher.Constraint("Tangent", 58, 2, 59, 1))
sketch1.addConstraint(Sketcher.Constraint("Tangent", 59, 2, 60, 1))
sketch1.addConstraint(Sketcher.Constraint("Tangent", 60, 2, 61, 1))
sketch1.addConstraint(Sketcher.Constraint("Tangent", 61, 2, 62, 1))
sketch1.addConstraint(Sketcher.Constraint("Tangent", 62, 2, 63, 1))
sketch1.addConstraint(Sketcher.Constraint("Tangent", 63, 2, 56, 1))
sketch1.addConstraint(Sketcher.Constraint("Tangent", 64, 2, 65, 1))
sketch1.addConstraint(Sketcher.Constraint("Tangent", 65, 2, 66, 1))
sketch1.addConstraint(Sketcher.Constraint("Tangent", 66, 2, 67, 1))
sketch1.addConstraint(Sketcher.Constraint("Tangent", 67, 2, 68, 1))
sketch1.addConstraint(Sketcher.Constraint("Tangent", 68, 2, 69, 1))
sketch1.addConstraint(Sketcher.Constraint("Tangent", 69, 2, 70, 1))
sketch1.addConstraint(Sketcher.Constraint("Tangent", 70, 2, 71, 1))
sketch1.addConstraint(Sketcher.Constraint("Tangent", 71, 2, 64, 1))
sketch1.addConstraint(Sketcher.Constraint("Tangent", 72, 2, 73, 1))
sketch1.addConstraint(Sketcher.Constraint("Tangent", 73, 2, 74, 1))
sketch1.addConstraint(Sketcher.Constraint("Tangent", 74, 2, 75, 1))
sketch1.addConstraint(Sketcher.Constraint("Tangent", 75, 2, 76, 1))
sketch1.addConstraint(Sketcher.Constraint("Tangent", 76, 2, 77, 1))
sketch1.addConstraint(Sketcher.Constraint("Tangent", 77, 2, 78, 1))
sketch1.addConstraint(Sketcher.Constraint("Tangent", 78, 2, 79, 1))
sketch1.addConstraint(Sketcher.Constraint("Tangent", 79, 2, 72, 1))
sketch1.addConstraint(Sketcher.Constraint("Tangent", 80, 2, 81, 1))
sketch1.addConstraint(Sketcher.Constraint("Tangent", 81, 2, 82, 1))
sketch1.addConstraint(Sketcher.Constraint("Tangent", 82, 2, 83, 1))
sketch1.addConstraint(Sketcher.Constraint("Tangent", 83, 2, 84, 1))
sketch1.addConstraint(Sketcher.Constraint("Tangent", 84, 2, 85, 1))
sketch1.addConstraint(Sketcher.Constraint("Tangent", 85, 2, 86, 1))
sketch1.addConstraint(Sketcher.Constraint("Tangent", 86, 2, 87, 1))
sketch1.addConstraint(Sketcher.Constraint("Tangent", 87, 2, 80, 1))
sketch1.addConstraint(Sketcher.Constraint("Horizontal", 0))
sketch1.addConstraint(Sketcher.Constraint("Vertical", 2))
sketch1.addConstraint(Sketcher.Constraint("Horizontal", 4))
sketch1.addConstraint(Sketcher.Constraint("Vertical", 6))
sketch1.addConstraint(Sketcher.Constraint("Vertical", 8))
sketch1.addConstraint(Sketcher.Constraint("Horizontal", 10))
sketch1.addConstraint(Sketcher.Constraint("Vertical", 12))
sketch1.addConstraint(Sketcher.Constraint("Horizontal", 14))
sketch1.addConstraint(Sketcher.Constraint("Horizontal", 16))
sketch1.addConstraint(Sketcher.Constraint("Vertical", 18))
sketch1.addConstraint(Sketcher.Constraint("Horizontal", 20))
sketch1.addConstraint(Sketcher.Constraint("Vertical", 22))
sketch1.addConstraint(Sketcher.Constraint("Vertical", 24))
sketch1.addConstraint(Sketcher.Constraint("Horizontal", 26))
sketch1.addConstraint(Sketcher.Constraint("Vertical", 28))
sketch1.addConstraint(Sketcher.Constraint("Horizontal", 30))
sketch1.addConstraint(Sketcher.Constraint("Vertical", 32))
sketch1.addConstraint(Sketcher.Constraint("Horizontal", 34))
sketch1.addConstraint(Sketcher.Constraint("Vertical", 36))
sketch1.addConstraint(Sketcher.Constraint("Horizontal", 38))
sketch1.addConstraint(Sketcher.Constraint("Vertical", 40))
sketch1.addConstraint(Sketcher.Constraint("Horizontal", 42))
sketch1.addConstraint(Sketcher.Constraint("Vertical", 44))
sketch1.addConstraint(Sketcher.Constraint("Horizontal", 46))
sketch1.addConstraint(Sketcher.Constraint("Vertical", 48))
sketch1.addConstraint(Sketcher.Constraint("Horizontal", 50))
sketch1.addConstraint(Sketcher.Constraint("Vertical", 52))
sketch1.addConstraint(Sketcher.Constraint("Horizontal", 54))
sketch1.addConstraint(Sketcher.Constraint("Vertical", 56))
sketch1.addConstraint(Sketcher.Constraint("Horizontal", 58))
sketch1.addConstraint(Sketcher.Constraint("Vertical", 60))
sketch1.addConstraint(Sketcher.Constraint("Horizontal", 62))
sketch1.addConstraint(Sketcher.Constraint("Vertical", 64))
sketch1.addConstraint(Sketcher.Constraint("Horizontal", 66))
sketch1.addConstraint(Sketcher.Constraint("Vertical", 68))
sketch1.addConstraint(Sketcher.Constraint("Horizontal", 70))
sketch1.addConstraint(Sketcher.Constraint("Vertical", 72))
sketch1.addConstraint(Sketcher.Constraint("Horizontal", 74))
sketch1.addConstraint(Sketcher.Constraint("Vertical", 76))
sketch1.addConstraint(Sketcher.Constraint("Horizontal", 78))
sketch1.addConstraint(Sketcher.Constraint("Vertical", 80))
sketch1.addConstraint(Sketcher.Constraint("Horizontal", 82))
sketch1.addConstraint(Sketcher.Constraint("Vertical", 84))
sketch1.addConstraint(Sketcher.Constraint("Horizontal", 86))
sketch1.addConstraint(Sketcher.Constraint("Equal", 1, 3))
sketch1.addConstraint(Sketcher.Constraint("Equal", 3, 5))
sketch1.addConstraint(Sketcher.Constraint("Equal", 5, 7))
sketch1.addConstraint(Sketcher.Constraint("Equal", 7, 9))
sketch1.addConstraint(Sketcher.Constraint("Equal", 9, 11))
sketch1.addConstraint(Sketcher.Constraint("Equal", 11, 13))
sketch1.addConstraint(Sketcher.Constraint("Equal", 13, 15))
sketch1.addConstraint(Sketcher.Constraint("Equal", 15, 17))
sketch1.addConstraint(Sketcher.Constraint("Equal", 17, 19))
sketch1.addConstraint(Sketcher.Constraint("Equal", 19, 21))
sketch1.addConstraint(Sketcher.Constraint("Equal", 21, 23))
sketch1.addConstraint(Sketcher.Constraint("Equal", 23, 25))
sketch1.addConstraint(Sketcher.Constraint("Equal", 25, 27))
sketch1.addConstraint(Sketcher.Constraint("Equal", 27, 29))
sketch1.addConstraint(Sketcher.Constraint("Equal", 29, 31))
sketch1.addConstraint(Sketcher.Constraint("Equal", 31, 33))
sketch1.addConstraint(Sketcher.Constraint("Equal", 33, 35))
sketch1.addConstraint(Sketcher.Constraint("Equal", 35, 37))
sketch1.addConstraint(Sketcher.Constraint("Equal", 37, 39))
sketch1.addConstraint(Sketcher.Constraint("Equal", 39, 41))
sketch1.addConstraint(Sketcher.Constraint("Equal", 41, 43))
sketch1.addConstraint(Sketcher.Constraint("Equal", 43, 45))
sketch1.addConstraint(Sketcher.Constraint("Equal", 45, 47))
sketch1.addConstraint(Sketcher.Constraint("Equal", 47, 49))
sketch1.addConstraint(Sketcher.Constraint("Equal", 49, 51))
sketch1.addConstraint(Sketcher.Constraint("Equal", 51, 53))
sketch1.addConstraint(Sketcher.Constraint("Equal", 53, 55))
sketch1.addConstraint(Sketcher.Constraint("Equal", 55, 57))
sketch1.addConstraint(Sketcher.Constraint("Equal", 57, 59))
sketch1.addConstraint(Sketcher.Constraint("Equal", 59, 61))
sketch1.addConstraint(Sketcher.Constraint("Equal", 61, 63))
sketch1.addConstraint(Sketcher.Constraint("Equal", 63, 65))
sketch1.addConstraint(Sketcher.Constraint("Equal", 65, 67))
sketch1.addConstraint(Sketcher.Constraint("Equal", 67, 69))
sketch1.addConstraint(Sketcher.Constraint("Equal", 69, 71))
sketch1.addConstraint(Sketcher.Constraint("Equal", 71, 73))
sketch1.addConstraint(Sketcher.Constraint("Equal", 73, 75))
sketch1.addConstraint(Sketcher.Constraint("Equal", 75, 77))
sketch1.addConstraint(Sketcher.Constraint("Equal", 77, 79))
sketch1.addConstraint(Sketcher.Constraint("Equal", 79, 81))
sketch1.addConstraint(Sketcher.Constraint("Equal", 81, 83))
sketch1.addConstraint(Sketcher.Constraint("Equal", 83, 85))
sketch1.addConstraint(Sketcher.Constraint("Equal", 85, 87))
sketch1.addConstraint(Sketcher.Constraint("Horizontal", 7, 3, 25, 3))
sketch1.addConstraint(Sketcher.Constraint("Horizontal", 5, 3, 29, 3))
sketch1.addConstraint(Sketcher.Constraint("Horizontal", 11, 3, 33, 3))
sketch1.addConstraint(Sketcher.Constraint("Horizontal", 15, 3, 37, 3))
sketch1.addConstraint(Sketcher.Constraint("Horizontal", 23, 3, 45, 3))
sketch1.addConstraint(Sketcher.Constraint("Horizontal", 21, 3, 49, 3))
sketch1.addConstraint(Sketcher.Constraint("Horizontal", 27, 3, 57, 3))
sketch1.addConstraint(Sketcher.Constraint("Horizontal", 31, 3, 61, 3))
sketch1.addConstraint(Sketcher.Constraint("Horizontal", 35, 3, 65, 3))
sketch1.addConstraint(Sketcher.Constraint("Horizontal", 39, 3, 69, 3))
sketch1.addConstraint(Sketcher.Constraint("Horizontal", 43, 3, 73, 3))
sketch1.addConstraint(Sketcher.Constraint("Horizontal", 47, 3, 77, 3))
sketch1.addConstraint(Sketcher.Constraint("Horizontal", 51, 3, 81, 3))
sketch1.addConstraint(Sketcher.Constraint("Horizontal", 55, 3, 85, 3))
sketch1.addConstraint(Sketcher.Constraint("Vertical", 7, 3, 9, 3))
sketch1.addConstraint(Sketcher.Constraint("Vertical", 3, 3, 11, 3))
sketch1.addConstraint(Sketcher.Constraint("Vertical", 15, 3, 17, 3))
sketch1.addConstraint(Sketcher.Constraint("Vertical", 13, 3, 21, 3))
sketch1.addConstraint(Sketcher.Constraint("Vertical", 31, 3, 33, 3))
sketch1.addConstraint(Sketcher.Constraint("Vertical", 29, 3, 35, 3))
sketch1.addConstraint(Sketcher.Constraint("Vertical", 39, 3, 41, 3))
sketch1.addConstraint(Sketcher.Constraint("Vertical", 37, 3, 43, 3))
sketch1.addConstraint(Sketcher.Constraint("Vertical", 47, 3, 49, 3))
sketch1.addConstraint(Sketcher.Constraint("Vertical", 45, 3, 51, 3))
sketch1.addConstraint(Sketcher.Constraint("Vertical", 63, 3, 65, 3))
sketch1.addConstraint(Sketcher.Constraint("Vertical", 61, 3, 67, 3))
sketch1.addConstraint(Sketcher.Constraint("Vertical", 71, 3, 73, 3))
sketch1.addConstraint(Sketcher.Constraint("Vertical", 69, 3, 75, 3))
sketch1.addConstraint(Sketcher.Constraint("Vertical", 79, 3, 81, 3))
sketch1.addConstraint(Sketcher.Constraint("Vertical", 77, 3, 83, 3))
sketch1.addConstraint(Sketcher.Constraint("Equal", 20, 26))
sketch1.addConstraint(Sketcher.Constraint("Equal", 54, 58))
sketch1.addConstraint(Sketcher.Constraint("Equal", 86, 2))
sketch1.addConstraint(Sketcher.Constraint("Equal", 6, 8))
sketch1.addConstraint(Sketcher.Constraint("Equal", 36, 40))
sketch1.addConstraint(Sketcher.Constraint("Equal", 44, 48))
sketch1.addConstraint(Sketcher.Constraint("Radius", 1, Q("1.500001 mm")))
sketch1.addConstraint(Sketcher.Constraint("DistanceX", 0, 2, 0, 1, Q("12.5 mm")))
sketch1.addConstraint(Sketcher.Constraint("DistanceY", 18, 1, 18, 2, Q("31.5 mm")))
sketch1.addConstraint(Sketcher.Constraint("DistanceX", -1, 1, 1, 3, Q("3.250001 mm")))
sketch1.addConstraint(Sketcher.Constraint("DistanceY", -1, 1, 1, 3, Q("15.749999 mm")))
sketch1.addConstraint(Sketcher.Constraint("DistanceY", -1, 1, 9, 3, Q("34.749999 mm")))
sketch1.addConstraint(Sketcher.Constraint("DistanceY", -1, 1, 17, 3, Q("41.250001 mm")))
sketch1.addConstraint(Sketcher.Constraint("DistanceX", -1, 1, 25, 3, Q("34.749999 mm")))
sketch1.addConstraint(Sketcher.Constraint("DistanceX", -1, 1, 57, 3, Q("53.749999 mm")))
pad1 = body.newObject("PartDesign::Pad", "Pad")
pad1.Profile = sketch1
pad1.Length = 1

doc.recompute()
